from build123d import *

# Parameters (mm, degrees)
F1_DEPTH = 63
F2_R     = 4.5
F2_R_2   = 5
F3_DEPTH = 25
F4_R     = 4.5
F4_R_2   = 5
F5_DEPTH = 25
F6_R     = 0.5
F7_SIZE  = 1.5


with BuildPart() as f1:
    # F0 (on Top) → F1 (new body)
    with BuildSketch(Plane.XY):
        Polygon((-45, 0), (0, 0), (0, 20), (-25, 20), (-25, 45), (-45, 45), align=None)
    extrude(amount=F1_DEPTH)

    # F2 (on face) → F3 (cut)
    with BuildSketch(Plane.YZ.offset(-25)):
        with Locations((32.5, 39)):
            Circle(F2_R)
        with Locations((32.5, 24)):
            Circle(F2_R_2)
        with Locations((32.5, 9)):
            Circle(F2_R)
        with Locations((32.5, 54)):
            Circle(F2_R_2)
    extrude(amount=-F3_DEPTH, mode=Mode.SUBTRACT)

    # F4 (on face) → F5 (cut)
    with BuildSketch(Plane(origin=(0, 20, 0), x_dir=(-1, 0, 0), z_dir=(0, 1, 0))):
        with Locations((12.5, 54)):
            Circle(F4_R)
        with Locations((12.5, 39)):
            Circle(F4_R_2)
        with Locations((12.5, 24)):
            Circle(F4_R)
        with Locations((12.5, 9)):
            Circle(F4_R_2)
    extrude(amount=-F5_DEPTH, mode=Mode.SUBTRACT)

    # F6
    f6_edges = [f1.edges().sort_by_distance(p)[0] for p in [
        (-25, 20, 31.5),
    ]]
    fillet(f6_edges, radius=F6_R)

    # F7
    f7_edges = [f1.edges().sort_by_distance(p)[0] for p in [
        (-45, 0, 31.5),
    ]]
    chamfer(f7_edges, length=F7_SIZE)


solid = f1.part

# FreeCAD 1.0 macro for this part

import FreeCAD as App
import Part
import Sketcher

V = App.Vector
Q = App.Units.Quantity


def edges_at(feature, points):
    """Names of the edges that pass closest to the given points."""
    edges = feature.Shape.Edges
    near = lambda p: min(range(len(edges)), key=lambda i: edges[i].distToShape(Part.Vertex(*p))[0])
    return sorted({f"Edge{near(p) + 1}" for p in points})

doc = App.newDocument("Part")
body = doc.addObject("PartDesign::Body", "Body")

# Sketch on XY plane
sketch1 = body.newObject("Sketcher::SketchObject", "Sketch")
sketch1.AttachmentSupport = (doc.getObject("XY_Plane"), [""])
sketch1.MapMode = "FlatFace"
sketch1.addGeometry([
    Part.LineSegment(V(-45, 0, 0), V(0, 0, 0)),  # 0
    Part.LineSegment(V(0, 0, 0), V(0, 20, 0)),  # 1
    Part.LineSegment(V(0, 20, 0), V(-25, 20, 0)),  # 2
    Part.LineSegment(V(-25, 20, 0), V(-25, 45, 0)),  # 3
    Part.LineSegment(V(-25, 45, 0), V(-45, 45, 0)),  # 4
    Part.LineSegment(V(-45, 45, 0), V(-45, 0, 0)),  # 5
], False)
sketch1.addConstraint([
    Sketcher.Constraint("Coincident", 0, 2, 1, 1),
    Sketcher.Constraint("Coincident", 1, 2, 2, 1),
    Sketcher.Constraint("Coincident", 2, 2, 3, 1),
    Sketcher.Constraint("Coincident", 3, 2, 4, 1),
    Sketcher.Constraint("Coincident", 4, 2, 5, 1),
    Sketcher.Constraint("Coincident", 5, 2, 0, 1),
    Sketcher.Constraint("Horizontal", 0),
    Sketcher.Constraint("Vertical", 1),
    Sketcher.Constraint("Horizontal", 2),
    Sketcher.Constraint("Vertical", 3),
    Sketcher.Constraint("Horizontal", 4),
    Sketcher.Constraint("Vertical", 5),
    Sketcher.Constraint("Coincident", 0, 2, -1, 1),
    Sketcher.Constraint("Equal", 4, 1),
    Sketcher.Constraint("Equal", 2, 3),
    Sketcher.Constraint("DistanceX", 0, 1, 0, 2, Q("45 mm")),
    Sketcher.Constraint("DistanceX", 2, 2, 2, 1, Q("25 mm")),
])
pad1 = body.newObject("PartDesign::Pad", "Pad")
pad1.Profile = sketch1
pad1.Length = 63

# Sketch on YZ plane
sketch2 = body.newObject("Sketcher::SketchObject", "Sketch001")
sketch2.AttachmentSupport = (doc.getObject("YZ_Plane"), [""])
sketch2.MapMode = "FlatFace"
sketch2.AttachmentOffset = App.Placement(V(0, 0, -25), App.Rotation())
sketch2.addGeometry([
    Part.Circle(V(32.5, 39, 0), V(0, 0, 1), 4.5),
    Part.Circle(V(32.5, 24, 0), V(0, 0, 1), 5),
    Part.Circle(V(32.5, 9, 0), V(0, 0, 1), 4.5),
    Part.Circle(V(32.5, 54, 0), V(0, 0, 1), 5),
], False)
sketch2.addConstraint([
    Sketcher.Constraint("Equal", 0, 2),
    Sketcher.Constraint("Equal", 1, 3),
    Sketcher.Constraint("Vertical", 0, 3, 1, 3),
    Sketcher.Constraint("Vertical", 1, 3, 2, 3),
    Sketcher.Constraint("Vertical", 2, 3, 3, 3),
    Sketcher.Constraint("Diameter", 0, Q("9 mm")),
    Sketcher.Constraint("Diameter", 1, Q("10 mm")),
    Sketcher.Constraint("DistanceY", -1, 1, 0, 3, Q("39 mm")),
    Sketcher.Constraint("DistanceY", -1, 1, 1, 3, Q("24 mm")),
    Sketcher.Constraint("DistanceY", -1, 1, 2, 3, Q("9 mm")),
    Sketcher.Constraint("DistanceY", -1, 1, 3, 3, Q("54 mm")),
    Sketcher.Constraint("DistanceX", -1, 1, 0, 3, Q("32.5 mm")),
])
pocket1 = body.newObject("PartDesign::Pocket", "Pocket")
pocket1.Profile = sketch2
pocket1.Length = 25

# Sketch on XZ plane
sketch3 = body.newObject("Sketcher::SketchObject", "Sketch002")
sketch3.AttachmentSupport = (doc.getObject("XZ_Plane"), [""])
sketch3.MapMode = "FlatFace"
sketch3.AttachmentOffset = App.Placement(V(0, 0, -20), App.Rotation())
sketch3.addGeometry([
    Part.Circle(V(-12.5, 54, 0), V(0, 0, 1), 4.5),
    Part.Circle(V(-12.5, 39, 0), V(0, 0, 1), 5),
    Part.Circle(V(-12.5, 24, 0), V(0, 0, 1), 4.5),
    Part.Circle(V(-12.5, 9, 0), V(0, 0, 1), 5),
], False)
sketch3.addConstraint([
    Sketcher.Constraint("Equal", 0, 2),
    Sketcher.Constraint("Equal", 1, 3),
    Sketcher.Constraint("Vertical", 0, 3, 1, 3),
    Sketcher.Constraint("Vertical", 1, 3, 2, 3),
    Sketcher.Constraint("Vertical", 2, 3, 3, 3),
    Sketcher.Constraint("Diameter", 0, Q("9 mm")),
    Sketcher.Constraint("Diameter", 1, Q("10 mm")),
    Sketcher.Constraint("DistanceY", -1, 1, 0, 3, Q("54 mm")),
    Sketcher.Constraint("DistanceY", -1, 1, 1, 3, Q("39 mm")),
    Sketcher.Constraint("DistanceY", -1, 1, 2, 3, Q("24 mm")),
    Sketcher.Constraint("DistanceY", -1, 1, 3, 3, Q("9 mm")),
    Sketcher.Constraint("DistanceX", 0, 3, -1, 1, Q("12.5 mm")),
])
pocket2 = body.newObject("PartDesign::Pocket", "Pocket001")
pocket2.Profile = sketch3
pocket2.Length = 25
pocket2.Reversed = True
doc.recompute()

fillet = body.newObject("PartDesign::Fillet", "Fillet")
fillet.Base = (pocket2, edges_at(pocket2, [(-25, 20, 31.5)]))
fillet.Radius = 0.5
doc.recompute()

chamfer = body.newObject("PartDesign::Chamfer", "Chamfer")
chamfer.Base = (fillet, edges_at(fillet, [(-45, 0, 31.5)]))
chamfer.Size = 1.5

doc.recompute()
